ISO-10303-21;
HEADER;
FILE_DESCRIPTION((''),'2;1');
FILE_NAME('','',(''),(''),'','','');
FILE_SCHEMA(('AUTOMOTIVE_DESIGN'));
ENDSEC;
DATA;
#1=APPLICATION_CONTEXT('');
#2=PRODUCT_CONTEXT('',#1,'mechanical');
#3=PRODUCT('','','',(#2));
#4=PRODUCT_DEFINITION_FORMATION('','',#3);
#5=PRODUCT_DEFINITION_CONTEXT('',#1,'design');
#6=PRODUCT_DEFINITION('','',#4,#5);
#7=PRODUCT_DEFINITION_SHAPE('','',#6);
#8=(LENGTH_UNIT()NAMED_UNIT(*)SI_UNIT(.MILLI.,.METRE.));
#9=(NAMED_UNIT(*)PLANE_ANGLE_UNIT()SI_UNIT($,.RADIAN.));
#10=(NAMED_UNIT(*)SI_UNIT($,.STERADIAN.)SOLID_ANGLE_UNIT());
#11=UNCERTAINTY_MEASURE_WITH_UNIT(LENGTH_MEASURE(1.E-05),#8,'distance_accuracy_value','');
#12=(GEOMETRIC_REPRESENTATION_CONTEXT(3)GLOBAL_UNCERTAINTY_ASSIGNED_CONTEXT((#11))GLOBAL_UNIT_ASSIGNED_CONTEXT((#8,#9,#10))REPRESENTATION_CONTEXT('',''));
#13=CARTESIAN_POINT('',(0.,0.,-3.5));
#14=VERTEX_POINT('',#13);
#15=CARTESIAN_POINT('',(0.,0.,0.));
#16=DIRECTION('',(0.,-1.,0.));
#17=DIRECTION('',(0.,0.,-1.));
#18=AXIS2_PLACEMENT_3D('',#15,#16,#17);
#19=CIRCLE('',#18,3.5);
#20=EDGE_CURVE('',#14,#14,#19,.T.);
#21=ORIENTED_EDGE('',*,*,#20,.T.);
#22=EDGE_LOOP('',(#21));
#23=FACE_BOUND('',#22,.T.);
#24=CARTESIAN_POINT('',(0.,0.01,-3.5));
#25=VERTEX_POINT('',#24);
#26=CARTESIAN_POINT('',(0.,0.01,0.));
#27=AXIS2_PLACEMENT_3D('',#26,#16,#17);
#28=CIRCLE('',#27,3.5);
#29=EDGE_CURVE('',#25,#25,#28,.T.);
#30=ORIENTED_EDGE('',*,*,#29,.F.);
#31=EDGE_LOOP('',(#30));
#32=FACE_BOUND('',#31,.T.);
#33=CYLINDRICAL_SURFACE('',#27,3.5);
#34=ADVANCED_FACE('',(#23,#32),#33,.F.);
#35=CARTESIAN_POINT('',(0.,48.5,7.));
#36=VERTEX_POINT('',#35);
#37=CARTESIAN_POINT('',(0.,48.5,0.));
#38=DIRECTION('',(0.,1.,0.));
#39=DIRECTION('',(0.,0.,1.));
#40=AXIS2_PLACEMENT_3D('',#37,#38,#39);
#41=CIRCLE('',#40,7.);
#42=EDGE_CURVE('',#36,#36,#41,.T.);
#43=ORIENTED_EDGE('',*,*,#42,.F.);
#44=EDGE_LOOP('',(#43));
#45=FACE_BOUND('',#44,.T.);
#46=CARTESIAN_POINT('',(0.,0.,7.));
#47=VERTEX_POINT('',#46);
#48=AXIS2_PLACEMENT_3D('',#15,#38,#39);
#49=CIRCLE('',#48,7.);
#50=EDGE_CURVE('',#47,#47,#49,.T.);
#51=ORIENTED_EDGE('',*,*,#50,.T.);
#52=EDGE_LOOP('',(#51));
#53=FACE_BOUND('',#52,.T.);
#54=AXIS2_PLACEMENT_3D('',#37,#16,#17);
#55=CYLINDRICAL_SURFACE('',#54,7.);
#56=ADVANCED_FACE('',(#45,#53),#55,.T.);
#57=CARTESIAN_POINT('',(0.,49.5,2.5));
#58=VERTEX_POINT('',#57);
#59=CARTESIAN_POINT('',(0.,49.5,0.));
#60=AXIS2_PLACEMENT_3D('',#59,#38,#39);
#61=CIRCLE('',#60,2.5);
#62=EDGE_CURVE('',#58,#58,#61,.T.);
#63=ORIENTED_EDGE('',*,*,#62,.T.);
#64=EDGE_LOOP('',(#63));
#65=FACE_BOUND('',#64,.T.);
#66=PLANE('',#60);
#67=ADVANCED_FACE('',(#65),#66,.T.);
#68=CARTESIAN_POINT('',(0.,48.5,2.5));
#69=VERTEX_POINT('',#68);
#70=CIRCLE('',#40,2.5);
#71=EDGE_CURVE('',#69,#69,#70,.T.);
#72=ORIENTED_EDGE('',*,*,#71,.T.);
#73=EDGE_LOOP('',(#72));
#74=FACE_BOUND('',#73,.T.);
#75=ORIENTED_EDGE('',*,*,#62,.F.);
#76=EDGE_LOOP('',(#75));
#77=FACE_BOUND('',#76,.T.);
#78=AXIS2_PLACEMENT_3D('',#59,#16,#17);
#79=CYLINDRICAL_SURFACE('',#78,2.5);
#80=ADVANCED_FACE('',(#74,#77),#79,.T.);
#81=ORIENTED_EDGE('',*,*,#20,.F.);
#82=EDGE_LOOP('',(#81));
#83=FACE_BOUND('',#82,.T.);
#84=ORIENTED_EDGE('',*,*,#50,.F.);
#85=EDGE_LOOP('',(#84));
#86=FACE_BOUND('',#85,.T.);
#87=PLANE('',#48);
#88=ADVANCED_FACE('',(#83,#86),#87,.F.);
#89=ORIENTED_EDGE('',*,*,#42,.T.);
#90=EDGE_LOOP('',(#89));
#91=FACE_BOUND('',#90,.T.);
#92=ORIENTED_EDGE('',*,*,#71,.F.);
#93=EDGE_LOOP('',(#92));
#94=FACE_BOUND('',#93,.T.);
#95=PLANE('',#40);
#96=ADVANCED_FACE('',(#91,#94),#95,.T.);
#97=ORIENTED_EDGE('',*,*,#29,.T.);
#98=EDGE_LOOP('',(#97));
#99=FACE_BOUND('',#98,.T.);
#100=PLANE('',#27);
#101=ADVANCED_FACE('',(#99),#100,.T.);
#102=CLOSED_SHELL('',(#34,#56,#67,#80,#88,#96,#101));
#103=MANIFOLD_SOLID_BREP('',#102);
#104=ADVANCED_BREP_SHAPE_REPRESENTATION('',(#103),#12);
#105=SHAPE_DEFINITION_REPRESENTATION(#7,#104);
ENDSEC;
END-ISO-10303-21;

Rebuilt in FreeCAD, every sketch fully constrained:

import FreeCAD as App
import Part
import Sketcher
Q = App.Units.Quantity

doc = App.newDocument("Part")
params = doc.addObject("Spreadsheet::Sheet", "Params")
for row, (alias, value) in enumerate([
    ("sketch1_diameter", "14 mm"),
    ("pad1_length", "48.5 mm"),
    ("sketch2_diameter", "5 mm"),
    ("pad2_length", "1 mm"),
    ("sketch3_diameter", "7 mm"),
    ("pocket1_length", "0.01 mm"),
], start=1):
    params.set(f"A{row}", alias)
    params.set(f"B{row}", "=" + value)
    params.setAlias(f"B{row}", alias)

body = doc.addObject("PartDesign::Body", "Body")

# Sketch on XZ plane
sketch1 = doc.addObject("Sketcher::SketchObject", "Sketch")
body.addObject(sketch1)
sketch1.AttachmentSupport = (doc.XZ_Plane, [""])
sketch1.MapMode = "FlatFace"
sketch1.addGeometry(Part.Circle(App.Vector(0, 0, 0), App.Vector(0, 0, 1), 7), False)
sketch1.addConstraint([
    Sketcher.Constraint("Coincident", 0, 3, -1, 1),
    Sketcher.Constraint("Diameter", 0, Q("14 mm")),
])
sketch1.setExpression("Constraints[1]", "Params.sketch1_diameter")
pad1 = doc.addObject("PartDesign::Pad", "Pad")
body.addObject(pad1)
pad1.Profile = sketch1
pad1.setExpression("Length", "Params.pad1_length")
pad1.Reversed = True

# Sketch on XZ plane
sketch2 = doc.addObject("Sketcher::SketchObject", "Sketch001")
body.addObject(sketch2)
sketch2.AttachmentSupport = (doc.XZ_Plane, [""])
sketch2.MapMode = "FlatFace"
sketch2.AttachmentOffset = App.Placement(App.Vector(0, 0, -48.5), App.Rotation())
sketch2.addGeometry(Part.Circle(App.Vector(0, 0, 0), App.Vector(0, 0, 1), 2.5), False)
sketch2.addConstraint([
    Sketcher.Constraint("Coincident", 0, 3, -1, 1),
    Sketcher.Constraint("Diameter", 0, Q("5 mm")),
])
sketch2.setExpression("Constraints[1]", "Params.sketch2_diameter")
pad2 = doc.addObject("PartDesign::Pad", "Pad001")
body.addObject(pad2)
pad2.Profile = sketch2
pad2.setExpression("Length", "Params.pad2_length")
pad2.Reversed = True

# Sketch on XZ plane
sketch3 = doc.addObject("Sketcher::SketchObject", "Sketch002")
body.addObject(sketch3)
sketch3.AttachmentSupport = (doc.XZ_Plane, [""])
sketch3.MapMode = "FlatFace"
sketch3.addGeometry(Part.Circle(App.Vector(0, 0, 0), App.Vector(0, 0, 1), 3.5), False)
sketch3.addConstraint([
    Sketcher.Constraint("Coincident", 0, 3, -1, 1),
    Sketcher.Constraint("Diameter", 0, Q("7 mm")),
])
sketch3.setExpression("Constraints[1]", "Params.sketch3_diameter")
pocket1 = doc.addObject("PartDesign::Pocket", "Pocket")
body.addObject(pocket1)
pocket1.Profile = sketch3
pocket1.setExpression("Length", "Params.pocket1_length")

doc.recompute()
